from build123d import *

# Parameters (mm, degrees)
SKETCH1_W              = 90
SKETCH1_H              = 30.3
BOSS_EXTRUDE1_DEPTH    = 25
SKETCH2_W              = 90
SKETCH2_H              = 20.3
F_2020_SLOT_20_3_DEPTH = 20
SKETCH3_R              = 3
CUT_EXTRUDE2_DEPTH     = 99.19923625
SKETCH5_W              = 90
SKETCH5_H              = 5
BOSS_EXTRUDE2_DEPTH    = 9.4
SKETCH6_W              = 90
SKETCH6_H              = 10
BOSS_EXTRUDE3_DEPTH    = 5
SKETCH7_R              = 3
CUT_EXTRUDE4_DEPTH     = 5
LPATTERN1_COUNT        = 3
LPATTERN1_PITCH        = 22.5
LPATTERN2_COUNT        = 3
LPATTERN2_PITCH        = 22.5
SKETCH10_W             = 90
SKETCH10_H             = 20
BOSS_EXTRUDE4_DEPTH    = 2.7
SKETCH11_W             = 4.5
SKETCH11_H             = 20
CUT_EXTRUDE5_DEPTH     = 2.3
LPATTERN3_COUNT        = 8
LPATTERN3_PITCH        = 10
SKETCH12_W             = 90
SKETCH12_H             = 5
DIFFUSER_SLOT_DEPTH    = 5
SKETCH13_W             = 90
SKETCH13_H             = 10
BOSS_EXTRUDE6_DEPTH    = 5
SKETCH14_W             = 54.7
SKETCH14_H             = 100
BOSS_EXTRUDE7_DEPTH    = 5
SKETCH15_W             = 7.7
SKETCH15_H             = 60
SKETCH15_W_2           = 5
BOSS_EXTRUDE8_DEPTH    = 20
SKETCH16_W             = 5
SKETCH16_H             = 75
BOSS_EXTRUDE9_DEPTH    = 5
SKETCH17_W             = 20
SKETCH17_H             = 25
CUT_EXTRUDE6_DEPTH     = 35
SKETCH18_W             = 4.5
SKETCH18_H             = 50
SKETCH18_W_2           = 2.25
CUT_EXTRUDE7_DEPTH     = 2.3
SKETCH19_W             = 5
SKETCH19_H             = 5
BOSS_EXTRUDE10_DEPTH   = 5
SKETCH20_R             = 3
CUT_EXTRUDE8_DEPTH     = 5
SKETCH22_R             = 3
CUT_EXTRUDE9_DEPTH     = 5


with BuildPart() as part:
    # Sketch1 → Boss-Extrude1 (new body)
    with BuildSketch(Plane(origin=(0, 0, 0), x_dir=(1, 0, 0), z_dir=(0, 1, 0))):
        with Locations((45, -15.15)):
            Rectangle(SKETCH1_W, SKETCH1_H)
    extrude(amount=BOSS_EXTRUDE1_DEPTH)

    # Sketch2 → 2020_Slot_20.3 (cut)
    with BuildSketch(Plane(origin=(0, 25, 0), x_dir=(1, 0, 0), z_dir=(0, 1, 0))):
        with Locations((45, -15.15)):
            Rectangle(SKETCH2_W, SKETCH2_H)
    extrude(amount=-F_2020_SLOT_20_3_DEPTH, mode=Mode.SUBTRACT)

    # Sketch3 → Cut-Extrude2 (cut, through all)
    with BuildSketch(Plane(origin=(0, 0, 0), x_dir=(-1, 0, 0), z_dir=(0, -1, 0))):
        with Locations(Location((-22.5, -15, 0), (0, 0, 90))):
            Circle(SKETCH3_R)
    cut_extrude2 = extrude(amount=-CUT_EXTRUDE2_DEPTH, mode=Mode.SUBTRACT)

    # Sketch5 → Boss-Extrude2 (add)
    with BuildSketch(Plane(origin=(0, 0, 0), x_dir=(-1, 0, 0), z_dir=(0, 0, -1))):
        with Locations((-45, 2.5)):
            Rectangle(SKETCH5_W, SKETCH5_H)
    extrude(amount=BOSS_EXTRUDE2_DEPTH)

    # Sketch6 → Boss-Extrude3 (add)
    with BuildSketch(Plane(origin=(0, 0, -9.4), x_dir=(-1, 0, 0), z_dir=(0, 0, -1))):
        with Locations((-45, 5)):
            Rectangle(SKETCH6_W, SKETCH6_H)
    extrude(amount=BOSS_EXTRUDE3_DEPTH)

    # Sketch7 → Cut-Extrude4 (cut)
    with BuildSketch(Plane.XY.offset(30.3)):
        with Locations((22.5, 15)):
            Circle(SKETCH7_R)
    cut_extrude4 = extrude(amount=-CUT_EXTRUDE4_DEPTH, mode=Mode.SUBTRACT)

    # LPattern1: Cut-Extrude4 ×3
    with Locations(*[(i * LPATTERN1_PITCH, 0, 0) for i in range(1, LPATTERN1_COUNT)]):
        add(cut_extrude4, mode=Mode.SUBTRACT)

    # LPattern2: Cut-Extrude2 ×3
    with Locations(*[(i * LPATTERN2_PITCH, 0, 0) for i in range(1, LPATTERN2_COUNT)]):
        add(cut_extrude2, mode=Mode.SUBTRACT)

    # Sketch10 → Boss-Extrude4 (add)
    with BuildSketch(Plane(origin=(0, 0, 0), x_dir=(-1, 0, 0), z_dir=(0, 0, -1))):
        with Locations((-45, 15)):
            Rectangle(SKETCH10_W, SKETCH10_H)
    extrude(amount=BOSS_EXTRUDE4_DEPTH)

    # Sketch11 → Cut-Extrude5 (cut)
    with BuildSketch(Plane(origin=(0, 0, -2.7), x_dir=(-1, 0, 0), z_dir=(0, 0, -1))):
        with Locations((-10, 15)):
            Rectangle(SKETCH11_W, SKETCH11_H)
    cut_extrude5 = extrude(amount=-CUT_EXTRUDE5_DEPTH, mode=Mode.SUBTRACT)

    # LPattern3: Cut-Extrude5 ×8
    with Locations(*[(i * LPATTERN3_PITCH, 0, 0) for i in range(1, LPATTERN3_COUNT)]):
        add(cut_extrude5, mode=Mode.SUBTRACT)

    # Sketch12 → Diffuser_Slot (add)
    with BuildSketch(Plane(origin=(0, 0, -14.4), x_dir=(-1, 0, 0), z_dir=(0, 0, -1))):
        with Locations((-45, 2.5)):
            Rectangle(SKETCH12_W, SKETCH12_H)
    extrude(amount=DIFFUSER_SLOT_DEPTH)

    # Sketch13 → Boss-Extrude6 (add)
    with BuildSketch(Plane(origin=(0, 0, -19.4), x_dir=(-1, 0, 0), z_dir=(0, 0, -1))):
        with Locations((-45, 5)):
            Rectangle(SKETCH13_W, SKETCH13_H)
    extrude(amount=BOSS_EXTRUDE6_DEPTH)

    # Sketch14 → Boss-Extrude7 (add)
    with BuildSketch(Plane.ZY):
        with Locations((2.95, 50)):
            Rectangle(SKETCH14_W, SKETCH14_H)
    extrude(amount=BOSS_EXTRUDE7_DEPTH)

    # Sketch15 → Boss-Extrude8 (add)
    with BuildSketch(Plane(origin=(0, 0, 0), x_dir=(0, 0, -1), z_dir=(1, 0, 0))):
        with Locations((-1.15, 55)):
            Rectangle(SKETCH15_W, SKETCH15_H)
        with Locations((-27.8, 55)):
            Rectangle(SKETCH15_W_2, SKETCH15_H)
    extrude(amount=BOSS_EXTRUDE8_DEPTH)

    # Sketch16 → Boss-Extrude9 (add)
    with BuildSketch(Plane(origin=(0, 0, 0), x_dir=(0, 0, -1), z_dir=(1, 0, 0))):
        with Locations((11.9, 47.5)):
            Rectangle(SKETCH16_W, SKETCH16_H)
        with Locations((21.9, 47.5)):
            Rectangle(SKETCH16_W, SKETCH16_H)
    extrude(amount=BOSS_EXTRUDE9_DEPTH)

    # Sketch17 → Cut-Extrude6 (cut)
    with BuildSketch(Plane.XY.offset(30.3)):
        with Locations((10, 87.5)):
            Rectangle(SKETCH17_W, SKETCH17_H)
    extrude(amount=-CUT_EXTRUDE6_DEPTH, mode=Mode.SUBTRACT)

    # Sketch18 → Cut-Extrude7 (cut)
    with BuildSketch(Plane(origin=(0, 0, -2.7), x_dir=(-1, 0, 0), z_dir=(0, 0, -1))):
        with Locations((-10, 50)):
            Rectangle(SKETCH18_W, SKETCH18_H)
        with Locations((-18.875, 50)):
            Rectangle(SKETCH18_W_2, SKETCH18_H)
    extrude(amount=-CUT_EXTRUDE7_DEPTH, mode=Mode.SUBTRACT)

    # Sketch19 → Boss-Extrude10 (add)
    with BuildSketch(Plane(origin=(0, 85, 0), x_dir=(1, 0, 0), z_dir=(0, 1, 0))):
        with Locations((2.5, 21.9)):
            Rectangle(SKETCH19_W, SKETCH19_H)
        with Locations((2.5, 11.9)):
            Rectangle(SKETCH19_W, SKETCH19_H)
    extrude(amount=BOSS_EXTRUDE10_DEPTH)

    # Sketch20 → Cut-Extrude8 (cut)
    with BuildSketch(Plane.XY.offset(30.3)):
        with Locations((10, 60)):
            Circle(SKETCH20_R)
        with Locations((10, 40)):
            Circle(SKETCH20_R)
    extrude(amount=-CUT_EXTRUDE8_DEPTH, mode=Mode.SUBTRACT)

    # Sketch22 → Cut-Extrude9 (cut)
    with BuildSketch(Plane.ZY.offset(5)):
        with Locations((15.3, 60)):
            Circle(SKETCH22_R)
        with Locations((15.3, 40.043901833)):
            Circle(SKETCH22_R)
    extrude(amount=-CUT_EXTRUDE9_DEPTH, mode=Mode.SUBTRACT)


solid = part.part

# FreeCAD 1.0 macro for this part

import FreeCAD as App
import Part
import Sketcher
from FreeCAD import Vector
Q = App.Units.Quantity

doc = App.newDocument("Part")
body = doc.addObject("PartDesign::Body", "Body")

sketch1 = doc.addObject("Sketcher::SketchObject", "Sketch")
body.addObject(sketch1)
sketch1.AttachmentSupport = (doc.XZ_Plane, [""])
sketch1.MapMode = "FlatFace"
sketch1.addGeometry([
    Part.LineSegment(Vector(0, 0, 0), Vector(0, 30, 0)),
    Part.LineSegment(Vector(0, 30, 0), Vector(90, 30, 0)),
    Part.LineSegment(Vector(90, 30, 0), Vector(90, 0, 0)),
    Part.LineSegment(Vector(90, 0, 0), Vector(0, 0, 0)),
], False)
sketch1.addConstraint([
    Sketcher.Constraint("Coincident", 0, 2, 1, 1),
    Sketcher.Constraint("Coincident", 1, 2, 2, 1),
    Sketcher.Constraint("Coincident", 2, 2, 3, 1),
    Sketcher.Constraint("Coincident", 3, 2, 0, 1),
    Sketcher.Constraint("Vertical", 0),
    Sketcher.Constraint("Horizontal", 1),
    Sketcher.Constraint("Vertical", 2),
    Sketcher.Constraint("Horizontal", 3),
    Sketcher.Constraint("Coincident", 3, 2, -1, 1),
    Sketcher.Constraint("DistanceX", 1, 1, 1, 2, Q("90 mm")),
    Sketcher.Constraint("DistanceY", 0, 1, 0, 2, Q("30.3 mm")),
])
pad1 = doc.addObject("PartDesign::Pad", "Pad")
body.addObject(pad1)
pad1.Profile = sketch1
pad1.Length = 25
pad1.Reversed = True

sketch2 = doc.addObject("Sketcher::SketchObject", "Sketch001")
body.addObject(sketch2)
sketch2.AttachmentSupport = (doc.XZ_Plane, [""])
sketch2.MapMode = "FlatFace"
sketch2.AttachmentOffset = App.Placement(Vector(0, 0, -25), App.Rotation())
sketch2.addGeometry([
    Part.LineSegment(Vector(0, 5, 0), Vector(0, 25, 0)),
    Part.LineSegment(Vector(0, 25, 0), Vector(90, 25, 0)),
    Part.LineSegment(Vector(90, 25, 0), Vector(90, 5, 0)),
    Part.LineSegment(Vector(90, 5, 0), Vector(0, 5, 0)),
], False)
sketch2.addConstraint([
    Sketcher.Constraint("Coincident", 0, 2, 1, 1),
    Sketcher.Constraint("Coincident", 1, 2, 2, 1),
    Sketcher.Constraint("Coincident", 2, 2, 3, 1),
    Sketcher.Constraint("Coincident", 3, 2, 0, 1),
    Sketcher.Constraint("Vertical", 0),
    Sketcher.Constraint("Horizontal", 1),
    Sketcher.Constraint("Vertical", 2),
    Sketcher.Constraint("Horizontal", 3),
    Sketcher.Constraint("PointOnObject", 0, 2, -2),
    Sketcher.Constraint("DistanceX", 1, 1, 1, 2, Q("90 mm")),
    Sketcher.Constraint("DistanceY", 0, 1, 0, 2, Q("20.3 mm")),
    Sketcher.Constraint("DistanceY", -1, 1, 2, 2, Q("5 mm")),
])
pocket1 = doc.addObject("PartDesign::Pocket", "Pocket")
body.addObject(pocket1)
pocket1.Profile = sketch2
pocket1.Length = 20
pocket1.Reversed = True

sketch3 = doc.addObject("Sketcher::SketchObject", "Sketch002")
body.addObject(sketch3)
sketch3.AttachmentSupport = (doc.XZ_Plane, [""])
sketch3.MapMode = "FlatFace"
sketch3.addGeometry(Part.Circle(Vector(22.5, 15, 0), Vector(0, 0, 1), 3), False)
sketch3.addConstraint([
    Sketcher.Constraint("Diameter", 0, Q("6 mm")),
    Sketcher.Constraint("DistanceY", -1, 1, 0, 3, Q("15 mm")),
    Sketcher.Constraint("DistanceX", -1, 1, 0, 3, Q("22.5 mm")),
])
pocket2 = doc.addObject("PartDesign::Pocket", "Pocket001")
body.addObject(pocket2)
pocket2.Profile = sketch3
pocket2.Type = "ThroughAll"

sketch4 = doc.addObject("Sketcher::SketchObject", "Sketch003")
body.addObject(sketch4)
sketch4.AttachmentSupport = (doc.XY_Plane, [""])
sketch4.MapMode = "FlatFace"
sketch4.addGeometry([
    Part.LineSegment(Vector(90, 5, 0), Vector(90, 0, 0)),
    Part.LineSegment(Vector(90, 0, 0), Vector(0, 0, 0)),
    Part.LineSegment(Vector(0, 0, 0), Vector(0, 5, 0)),
    Part.LineSegment(Vector(0, 5, 0), Vector(90, 5, 0)),
], False)
sketch4.addConstraint([
    Sketcher.Constraint("Coincident", 0, 2, 1, 1),
    Sketcher.Constraint("Coincident", 1, 2, 2, 1),
    Sketcher.Constraint("Coincident", 2, 2, 3, 1),
    Sketcher.Constraint("Coincident", 3, 2, 0, 1),
    Sketcher.Constraint("Vertical", 0),
    Sketcher.Constraint("Horizontal", 1),
    Sketcher.Constraint("Vertical", 2),
    Sketcher.Constraint("Horizontal", 3),
    Sketcher.Constraint("Coincident", 1, 2, -1, 1),
    Sketcher.Constraint("DistanceX", 1, 2, 1, 1, Q("90 mm")),
    Sketcher.Constraint("DistanceY", 0, 2, 0, 1, Q("5 mm")),
])
pad2 = doc.addObject("PartDesign::Pad", "Pad001")
body.addObject(pad2)
pad2.Profile = sketch4
pad2.Length = 9.4
pad2.Reversed = True

sketch5 = doc.addObject("Sketcher::SketchObject", "Sketch004")
body.addObject(sketch5)
sketch5.AttachmentSupport = (doc.XY_Plane, [""])
sketch5.MapMode = "FlatFace"
sketch5.AttachmentOffset = App.Placement(Vector(0, 0, -9.4), App.Rotation())
sketch5.addGeometry([
    Part.LineSegment(Vector(90, 10, 0), Vector(90, 0, 0)),
    Part.LineSegment(Vector(90, 0, 0), Vector(0, 0, 0)),
    Part.LineSegment(Vector(0, 0, 0), Vector(0, 10, 0)),
    Part.LineSegment(Vector(0, 10, 0), Vector(90, 10, 0)),
], False)
sketch5.addConstraint([
    Sketcher.Constraint("Coincident", 0, 2, 1, 1),
    Sketcher.Constraint("Coincident", 1, 2, 2, 1),
    Sketcher.Constraint("Coincident", 2, 2, 3, 1),
    Sketcher.Constraint("Coincident", 3, 2, 0, 1),
    Sketcher.Constraint("Vertical", 0),
    Sketcher.Constraint("Horizontal", 1),
    Sketcher.Constraint("Vertical", 2),
    Sketcher.Constraint("Horizontal", 3),
    Sketcher.Constraint("Coincident", 1, 2, -1, 1),
    Sketcher.Constraint("DistanceX", 1, 2, 1, 1, Q("90 mm")),
    Sketcher.Constraint("DistanceY", 0, 2, 0, 1, Q("10 mm")),
])
pad3 = doc.addObject("PartDesign::Pad", "Pad002")
body.addObject(pad3)
pad3.Profile = sketch5
pad3.Length = 5
pad3.Reversed = True

sketch6 = doc.addObject("Sketcher::SketchObject", "Sketch005")
body.addObject(sketch6)
sketch6.AttachmentSupport = (doc.XY_Plane, [""])
sketch6.MapMode = "FlatFace"
sketch6.AttachmentOffset = App.Placement(Vector(0, 0, 30.3), App.Rotation())
sketch6.addGeometry(Part.Circle(Vector(22.5, 15, 0), Vector(0, 0, 1), 3), False)
sketch6.addConstraint([
    Sketcher.Constraint("Diameter", 0, Q("6 mm")),
    Sketcher.Constraint("DistanceY", -1, 1, 0, 3, Q("15 mm")),
    Sketcher.Constraint("DistanceX", -1, 1, 0, 3, Q("22.5 mm")),
])
pocket3 = doc.addObject("PartDesign::Pocket", "Pocket002")
body.addObject(pocket3)
pocket3.Profile = sketch6
pocket3.Length = 5
doc.recompute()

linearpattern = doc.addObject("PartDesign::LinearPattern", "LinearPattern")
body.addObject(linearpattern)
linearpattern.Originals = [pocket3]
linearpattern.Direction = (doc.X_Axis, [""])
linearpattern.Mode = "offset"
linearpattern.Offset = 22.5
linearpattern.Occurrences = 3
body.Tip = linearpattern
doc.recompute()

linearpattern2 = doc.addObject("PartDesign::LinearPattern", "LinearPattern001")
body.addObject(linearpattern2)
linearpattern2.Originals = [pocket2]
linearpattern2.Direction = (doc.X_Axis, [""])
linearpattern2.Mode = "offset"
linearpattern2.Offset = 22.5
linearpattern2.Occurrences = 3
body.Tip = linearpattern2

sketch7 = doc.addObject("Sketcher::SketchObject", "Sketch006")
body.addObject(sketch7)
sketch7.AttachmentSupport = (doc.XY_Plane, [""])
sketch7.MapMode = "FlatFace"
sketch7.addGeometry([
    Part.LineSegment(Vector(90, 25, 0), Vector(90, 5, 0)),
    Part.LineSegment(Vector(90, 5, 0), Vector(0, 5, 0)),
    Part.LineSegment(Vector(0, 5, 0), Vector(0, 25, 0)),
    Part.LineSegment(Vector(0, 25, 0), Vector(90, 25, 0)),
], False)
sketch7.addConstraint([
    Sketcher.Constraint("Coincident", 0, 2, 1, 1),
    Sketcher.Constraint("Coincident", 1, 2, 2, 1),
    Sketcher.Constraint("Coincident", 2, 2, 3, 1),
    Sketcher.Constraint("Coincident", 3, 2, 0, 1),
    Sketcher.Constraint("Vertical", 0),
    Sketcher.Constraint("Horizontal", 1),
    Sketcher.Constraint("Vertical", 2),
    Sketcher.Constraint("Horizontal", 3),
    Sketcher.Constraint("PointOnObject", 1, 2, -2),
    Sketcher.Constraint("DistanceX", 1, 2, 1, 1, Q("90 mm")),
    Sketcher.Constraint("DistanceY", 0, 2, 0, 1, Q("20 mm")),
    Sketcher.Constraint("DistanceY", -1, 1, 0, 2, Q("5 mm")),
])
pad4 = doc.addObject("PartDesign::Pad", "Pad003")
body.addObject(pad4)
pad4.Profile = sketch7
pad4.Length = 2.7
pad4.Reversed = True

sketch8 = doc.addObject("Sketcher::SketchObject", "Sketch007")
body.addObject(sketch8)
sketch8.AttachmentSupport = (doc.XY_Plane, [""])
sketch8.MapMode = "FlatFace"
sketch8.AttachmentOffset = App.Placement(Vector(0, 0, -2.7), App.Rotation())
sketch8.addGeometry([
    Part.LineSegment(Vector(12.2, 25, 0), Vector(12.2, 5, 0)),
    Part.LineSegment(Vector(12.2, 5, 0), Vector(7.8, 5, 0)),
    Part.LineSegment(Vector(7.8, 5, 0), Vector(7.8, 25, 0)),
    Part.LineSegment(Vector(7.8, 25, 0), Vector(12.2, 25, 0)),
], False)
sketch8.addConstraint([
    Sketcher.Constraint("Coincident", 0, 2, 1, 1),
    Sketcher.Constraint("Coincident", 1, 2, 2, 1),
    Sketcher.Constraint("Coincident", 2, 2, 3, 1),
    Sketcher.Constraint("Coincident", 3, 2, 0, 1),
    Sketcher.Constraint("Vertical", 0),
    Sketcher.Constraint("Horizontal", 1),
    Sketcher.Constraint("Vertical", 2),
    Sketcher.Constraint("Horizontal", 3),
    Sketcher.Constraint("DistanceY", 0, 2, 0, 1, Q("20 mm")),
    Sketcher.Constraint("DistanceX", 1, 2, 1, 1, Q("4.5 mm")),
    Sketcher.Constraint("DistanceY", -1, 1, 0, 2, Q("5 mm")),
    Sketcher.Constraint("DistanceX", -1, 1, 0, 2, Q("12.25 mm")),
])
pocket4 = doc.addObject("PartDesign::Pocket", "Pocket003")
body.addObject(pocket4)
pocket4.Profile = sketch8
pocket4.Length = 2.3
pocket4.Reversed = True
doc.recompute()

linearpattern3 = doc.addObject("PartDesign::LinearPattern", "LinearPattern002")
body.addObject(linearpattern3)
linearpattern3.Originals = [pocket4]
linearpattern3.Direction = (doc.X_Axis, [""])
linearpattern3.Mode = "offset"
linearpattern3.Offset = 10
linearpattern3.Occurrences = 8
body.Tip = linearpattern3

sketch9 = doc.addObject("Sketcher::SketchObject", "Sketch008")
body.addObject(sketch9)
sketch9.AttachmentSupport = (doc.XY_Plane, [""])
sketch9.MapMode = "FlatFace"
sketch9.AttachmentOffset = App.Placement(Vector(0, 0, -14.4), App.Rotation())
sketch9.addGeometry([
    Part.LineSegment(Vector(90, 5, 0), Vector(90, 0, 0)),
    Part.LineSegment(Vector(90, 0, 0), Vector(0, 0, 0)),
    Part.LineSegment(Vector(0, 0, 0), Vector(0, 5, 0)),
    Part.LineSegment(Vector(0, 5, 0), Vector(90, 5, 0)),
], False)
sketch9.addConstraint([
    Sketcher.Constraint("Coincident", 0, 2, 1, 1),
    Sketcher.Constraint("Coincident", 1, 2, 2, 1),
    Sketcher.Constraint("Coincident", 2, 2, 3, 1),
    Sketcher.Constraint("Coincident", 3, 2, 0, 1),
    Sketcher.Constraint("Vertical", 0),
    Sketcher.Constraint("Horizontal", 1),
    Sketcher.Constraint("Vertical", 2),
    Sketcher.Constraint("Horizontal", 3),
    Sketcher.Constraint("Coincident", 1, 2, -1, 1),
    Sketcher.Constraint("DistanceX", 1, 2, 1, 1, Q("90 mm")),
    Sketcher.Constraint("DistanceY", 0, 2, 0, 1, Q("5 mm")),
])
pad5 = doc.addObject("PartDesign::Pad", "Pad004")
body.addObject(pad5)
pad5.Profile = sketch9
pad5.Length = 5
pad5.Reversed = True

sketch10 = doc.addObject("Sketcher::SketchObject", "Sketch009")
body.addObject(sketch10)
sketch10.AttachmentSupport = (doc.XY_Plane, [""])
sketch10.MapMode = "FlatFace"
sketch10.AttachmentOffset = App.Placement(Vector(0, 0, -19.4), App.Rotation())
sketch10.addGeometry([
    Part.LineSegment(Vector(90, 10, 0), Vector(90, 0, 0)),
    Part.LineSegment(Vector(90, 0, 0), Vector(0, 0, 0)),
    Part.LineSegment(Vector(0, 0, 0), Vector(0, 10, 0)),
    Part.LineSegment(Vector(0, 10, 0), Vector(90, 10, 0)),
], False)
sketch10.addConstraint([
    Sketcher.Constraint("Coincident", 0, 2, 1, 1),
    Sketcher.Constraint("Coincident", 1, 2, 2, 1),
    Sketcher.Constraint("Coincident", 2, 2, 3, 1),
    Sketcher.Constraint("Coincident", 3, 2, 0, 1),
    Sketcher.Constraint("Vertical", 0),
    Sketcher.Constraint("Horizontal", 1),
    Sketcher.Constraint("Vertical", 2),
    Sketcher.Constraint("Horizontal", 3),
    Sketcher.Constraint("Coincident", 1, 2, -1, 1),
    Sketcher.Constraint("DistanceX", 1, 2, 1, 1, Q("90 mm")),
    Sketcher.Constraint("DistanceY", 0, 2, 0, 1, Q("10 mm")),
])
pad6 = doc.addObject("PartDesign::Pad", "Pad005")
body.addObject(pad6)
pad6.Profile = sketch10
pad6.Length = 5
pad6.Reversed = True

sketch11 = doc.addObject("Sketcher::SketchObject", "Sketch010")
body.addObject(sketch11)
sketch11.AttachmentSupport = (doc.YZ_Plane, [""])
sketch11.MapMode = "FlatFace"
sketch11.addGeometry([
    Part.LineSegment(Vector(100, -24, 0), Vector(0, -24, 0)),
    Part.LineSegment(Vector(0, -24, 0), Vector(0, 30, 0)),
    Part.LineSegment(Vector(0, 30, 0), Vector(100, 30, 0)),
    Part.LineSegment(Vector(100, 30, 0), Vector(100, -24, 0)),
], False)
sketch11.addConstraint([
    Sketcher.Constraint("Coincident", 0, 2, 1, 1),
    Sketcher.Constraint("Coincident", 1, 2, 2, 1),
    Sketcher.Constraint("Coincident", 2, 2, 3, 1),
    Sketcher.Constraint("Coincident", 3, 2, 0, 1),
    Sketcher.Constraint("Horizontal", 0),
    Sketcher.Constraint("Vertical", 1),
    Sketcher.Constraint("Horizontal", 2),
    Sketcher.Constraint("Vertical", 3),
    Sketcher.Constraint("PointOnObject", 0, 2, -2),
    Sketcher.Constraint("DistanceX", 0, 2, 0, 1, Q("100 mm")),
    Sketcher.Constraint("DistanceY", 1, 1, 1, 2, Q("54.7 mm")),
    Sketcher.Constraint("DistanceY", 0, 2, -1, 1, Q("24.4 mm")),
])
pad7 = doc.addObject("PartDesign::Pad", "Pad006")
body.addObject(pad7)
pad7.Profile = sketch11
pad7.Length = 5
pad7.Reversed = True

sketch12 = doc.addObject("Sketcher::SketchObject", "Sketch011")
body.addObject(sketch12)
sketch12.AttachmentSupport = (doc.YZ_Plane, [""])
sketch12.MapMode = "FlatFace"
sketch12.addGeometry([
    Part.LineSegment(Vector(85, 5, 0), Vector(25, 5, 0)),
    Part.LineSegment(Vector(25, 5, 0), Vector(25, -3, 0)),
    Part.LineSegment(Vector(25, -3, 0), Vector(85, -3, 0)),
    Part.LineSegment(Vector(85, -3, 0), Vector(85, 5, 0)),
    Part.LineSegment(Vector(85, 30, 0), Vector(25, 30, 0)),
    Part.LineSegment(Vector(25, 30, 0), Vector(25, 25, 0)),
    Part.LineSegment(Vector(25, 25, 0), Vector(85, 25, 0)),
    Part.LineSegment(Vector(85, 25, 0), Vector(85, 30, 0)),
], False)
sketch12.addConstraint([
    Sketcher.Constraint("Coincident", 0, 2, 1, 1),
    Sketcher.Constraint("Coincident", 1, 2, 2, 1),
    Sketcher.Constraint("Coincident", 2, 2, 3, 1),
    Sketcher.Constraint("Coincident", 3, 2, 0, 1),
    Sketcher.Constraint("Coincident", 4, 2, 5, 1),
    Sketcher.Constraint("Coincident", 5, 2, 6, 1),
    Sketcher.Constraint("Coincident", 6, 2, 7, 1),
    Sketcher.Constraint("Coincident", 7, 2, 4, 1),
    Sketcher.Constraint("Horizontal", 0),
    Sketcher.Constraint("Vertical", 1),
    Sketcher.Constraint("Horizontal", 2),
    Sketcher.Constraint("Vertical", 3),
    Sketcher.Constraint("Horizontal", 4),
    Sketcher.Constraint("Vertical", 5),
    Sketcher.Constraint("Horizontal", 6),
    Sketcher.Constraint("Vertical", 7),
    Sketcher.Constraint("Vertical", 1, 2, 4, 2),
    Sketcher.Constraint("Vertical", 3, 2, 6, 2),
    Sketcher.Constraint("DistanceX", 0, 2, 0, 1, Q("60 mm")),
    Sketcher.Constraint("DistanceY", 5, 2, 5, 1, Q("5 mm")),
    Sketcher.Constraint("DistanceY", 1, 2, 1, 1, Q("7.7 mm")),
    Sketcher.Constraint("DistanceX", -1, 1, 0, 2, Q("25 mm")),
    Sketcher.Constraint("DistanceY", -1, 1, 0, 2, Q("5 mm")),
    Sketcher.Constraint("DistanceY", 1, 2, 4, 2, Q("33 mm")),
])
pad8 = doc.addObject("PartDesign::Pad", "Pad007")
body.addObject(pad8)
pad8.Profile = sketch12
pad8.Length = 20

sketch13 = doc.addObject("Sketcher::SketchObject", "Sketch012")
body.addObject(sketch13)
sketch13.AttachmentSupport = (doc.YZ_Plane, [""])
sketch13.MapMode = "FlatFace"
sketch13.addGeometry([
    Part.LineSegment(Vector(85, -9, 0), Vector(10, -9, 0)),
    Part.LineSegment(Vector(10, -9, 0), Vector(10, -14, 0)),
    Part.LineSegment(Vector(10, -14, 0), Vector(85, -14, 0)),
    Part.LineSegment(Vector(85, -14, 0), Vector(85, -9, 0)),
    Part.LineSegment(Vector(85, -19, 0), Vector(10, -19, 0)),
    Part.LineSegment(Vector(10, -19, 0), Vector(10, -24, 0)),
    Part.LineSegment(Vector(10, -24, 0), Vector(85, -24, 0)),
    Part.LineSegment(Vector(85, -24, 0), Vector(85, -19, 0)),
], False)
sketch13.addConstraint([
    Sketcher.Constraint("Coincident", 0, 2, 1, 1),
    Sketcher.Constraint("Coincident", 1, 2, 2, 1),
    Sketcher.Constraint("Coincident", 2, 2, 3, 1),
    Sketcher.Constraint("Coincident", 3, 2, 0, 1),
    Sketcher.Constraint("Coincident", 4, 2, 5, 1),
    Sketcher.Constraint("Coincident", 5, 2, 6, 1),
    Sketcher.Constraint("Coincident", 6, 2, 7, 1),
    Sketcher.Constraint("Coincident", 7, 2, 4, 1),
    Sketcher.Constraint("Horizontal", 0),
    Sketcher.Constraint("Vertical", 1),
    Sketcher.Constraint("Horizontal", 2),
    Sketcher.Constraint("Vertical", 3),
    Sketcher.Constraint("Horizontal", 4),
    Sketcher.Constraint("Vertical", 5),
    Sketcher.Constraint("Horizontal", 6),
    Sketcher.Constraint("Vertical", 7),
    Sketcher.Constraint("Vertical", 1, 2, 4, 2),
    Sketcher.Constraint("Vertical", 3, 2, 6, 2),
    Sketcher.Constraint("Equal", 3, 5),
    Sketcher.Constraint("DistanceX", 0, 2, 0, 1, Q("75 mm")),
    Sketcher.Constraint("DistanceY", 1, 2, 1, 1, Q("5 mm")),
    Sketcher.Constraint("DistanceX", -1, 1, 0, 2, Q("10 mm")),
    Sketcher.Constraint("DistanceY", 4, 2, 1, 2, Q("5 mm")),
    Sketcher.Constraint("DistanceY", 0, 2, -1, 1, Q("9.4 mm")),
])
pad9 = doc.addObject("PartDesign::Pad", "Pad008")
body.addObject(pad9)
pad9.Profile = sketch13
pad9.Length = 5

sketch14 = doc.addObject("Sketcher::SketchObject", "Sketch013")
body.addObject(sketch14)
sketch14.AttachmentSupport = (doc.XY_Plane, [""])
sketch14.MapMode = "FlatFace"
sketch14.AttachmentOffset = App.Placement(Vector(0, 0, 30.3), App.Rotation())
sketch14.addGeometry([
    Part.LineSegment(Vector(0, 100, 0), Vector(0, 75, 0)),
    Part.LineSegment(Vector(0, 75, 0), Vector(20, 75, 0)),
    Part.LineSegment(Vector(20, 75, 0), Vector(20, 100, 0)),
    Part.LineSegment(Vector(20, 100, 0), Vector(0, 100, 0)),
], False)
sketch14.addConstraint([
    Sketcher.Constraint("Coincident", 0, 2, 1, 1),
    Sketcher.Constraint("Coincident", 1, 2, 2, 1),
    Sketcher.Constraint("Coincident", 2, 2, 3, 1),
    Sketcher.Constraint("Coincident", 3, 2, 0, 1),
    Sketcher.Constraint("Vertical", 0),
    Sketcher.Constraint("Horizontal", 1),
    Sketcher.Constraint("Vertical", 2),
    Sketcher.Constraint("Horizontal", 3),
    Sketcher.Constraint("PointOnObject", 0, 2, -2),
    Sketcher.Constraint("DistanceX", 1, 1, 1, 2, Q("20 mm")),
    Sketcher.Constraint("DistanceY", 0, 2, 0, 1, Q("25 mm")),
    Sketcher.Constraint("DistanceY", -1, 1, 0, 2, Q("75 mm")),
])
pocket5 = doc.addObject("PartDesign::Pocket", "Pocket004")
body.addObject(pocket5)
pocket5.Profile = sketch14
pocket5.Length = 35

sketch15 = doc.addObject("Sketcher::SketchObject", "Sketch014")
body.addObject(sketch15)
sketch15.AttachmentSupport = (doc.XY_Plane, [""])
sketch15.MapMode = "FlatFace"
sketch15.AttachmentOffset = App.Placement(Vector(0, 0, -2.7), App.Rotation())
sketch15.addGeometry([
    Part.LineSegment(Vector(12.2, 75, 0), Vector(12.2, 25, 0)),
    Part.LineSegment(Vector(12.2, 25, 0), Vector(7.8, 25, 0)),
    Part.LineSegment(Vector(7.8, 25, 0), Vector(7.8, 75, 0)),
    Part.LineSegment(Vector(7.8, 75, 0), Vector(12.2, 75, 0)),
    Part.LineSegment(Vector(20, 75, 0), Vector(20, 25, 0)),
    Part.LineSegment(Vector(20, 25, 0), Vector(17.8, 25, 0)),
    Part.LineSegment(Vector(17.8, 25, 0), Vector(17.8, 75, 0)),
    Part.LineSegment(Vector(17.8, 75, 0), Vector(20, 75, 0)),
], False)
sketch15.addConstraint([
    Sketcher.Constraint("Coincident", 0, 2, 1, 1),
    Sketcher.Constraint("Coincident", 1, 2, 2, 1),
    Sketcher.Constraint("Coincident", 2, 2, 3, 1),
    Sketcher.Constraint("Coincident", 3, 2, 0, 1),
    Sketcher.Constraint("Coincident", 4, 2, 5, 1),
    Sketcher.Constraint("Coincident", 5, 2, 6, 1),
    Sketcher.Constraint("Coincident", 6, 2, 7, 1),
    Sketcher.Constraint("Coincident", 7, 2, 4, 1),
    Sketcher.Constraint("Vertical", 0),
    Sketcher.Constraint("Horizontal", 1),
    Sketcher.Constraint("Vertical", 2),
    Sketcher.Constraint("Horizontal", 3),
    Sketcher.Constraint("Vertical", 4),
    Sketcher.Constraint("Horizontal", 5),
    Sketcher.Constraint("Vertical", 6),
    Sketcher.Constraint("Horizontal", 7),
    Sketcher.Constraint("Horizontal", 1, 2, 4, 2),
    Sketcher.Constraint("Horizontal", 3, 2, 6, 2),
    Sketcher.Constraint("DistanceY", 0, 2, 0, 1, Q("50 mm")),
    Sketcher.Constraint("DistanceX", 1, 2, 1, 1, Q("4.5 mm")),
    Sketcher.Constraint("DistanceY", -1, 1, 0, 2, Q("25 mm")),
    Sketcher.Constraint("DistanceX", -1, 1, 4, 2, Q("20 mm")),
    Sketcher.Constraint("DistanceX", 1, 2, 5, 2, Q("10 mm")),
    Sketcher.Constraint("DistanceX", 5, 2, 5, 1, Q("2.25 mm")),
])
pocket6 = doc.addObject("PartDesign::Pocket", "Pocket005")
body.addObject(pocket6)
pocket6.Profile = sketch15
pocket6.Length = 2.3
pocket6.Reversed = True

sketch16 = doc.addObject("Sketcher::SketchObject", "Sketch015")
body.addObject(sketch16)
sketch16.AttachmentSupport = (doc.XZ_Plane, [""])
sketch16.MapMode = "FlatFace"
sketch16.AttachmentOffset = App.Placement(Vector(0, 0, -85), App.Rotation())
sketch16.addGeometry([
    Part.LineSegment(Vector(0, -24, 0), Vector(0, -19, 0)),
    Part.LineSegment(Vector(0, -19, 0), Vector(5, -19, 0)),
    Part.LineSegment(Vector(5, -19, 0), Vector(5, -24, 0)),
    Part.LineSegment(Vector(5, -24, 0), Vector(0, -24, 0)),
    Part.LineSegment(Vector(0, -14, 0), Vector(0, -9, 0)),
    Part.LineSegment(Vector(0, -9, 0), Vector(5, -9, 0)),
    Part.LineSegment(Vector(5, -9, 0), Vector(5, -14, 0)),
    Part.LineSegment(Vector(5, -14, 0), Vector(0, -14, 0)),
], False)
sketch16.addConstraint([
    Sketcher.Constraint("Coincident", 0, 2, 1, 1),
    Sketcher.Constraint("Coincident", 1, 2, 2, 1),
    Sketcher.Constraint("Coincident", 2, 2, 3, 1),
    Sketcher.Constraint("Coincident", 3, 2, 0, 1),
    Sketcher.Constraint("Coincident", 4, 2, 5, 1),
    Sketcher.Constraint("Coincident", 5, 2, 6, 1),
    Sketcher.Constraint("Coincident", 6, 2, 7, 1),
    Sketcher.Constraint("Coincident", 7, 2, 4, 1),
    Sketcher.Constraint("Vertical", 0),
    Sketcher.Constraint("Horizontal", 1),
    Sketcher.Constraint("Vertical", 2),
    Sketcher.Constraint("Horizontal", 3),
    Sketcher.Constraint("Vertical", 4),
    Sketcher.Constraint("Horizontal", 5),
    Sketcher.Constraint("Vertical", 6),
    Sketcher.Constraint("Horizontal", 7),
    Sketcher.Constraint("PointOnObject", 0, 2, -2),
    Sketcher.Constraint("PointOnObject", 4, 2, -2),
    Sketcher.Constraint("Vertical", 2, 2, 5, 2),
    Sketcher.Constraint("Equal", 7, 0),
    Sketcher.Constraint("Equal", 2, 4),
    Sketcher.Constraint("DistanceX", 1, 1, 1, 2, Q("5 mm")),
    Sketcher.Constraint("DistanceY", 0, 2, 4, 2, Q("10 mm")),
    Sketcher.Constraint("DistanceY", 0, 2, -1, 1, Q("19.4 mm")),
])
pad10 = doc.addObject("PartDesign::Pad", "Pad009")
body.addObject(pad10)
pad10.Profile = sketch16
pad10.Length = 5
pad10.Reversed = True

sketch17 = doc.addObject("Sketcher::SketchObject", "Sketch016")
body.addObject(sketch17)
sketch17.AttachmentSupport = (doc.XY_Plane, [""])
sketch17.MapMode = "FlatFace"
sketch17.AttachmentOffset = App.Placement(Vector(0, 0, 30.3), App.Rotation())
sketch17.addGeometry([
    Part.Circle(Vector(10, 60, 0), Vector(0, 0, 1), 3),
    Part.Circle(Vector(10, 40, 0), Vector(0, 0, 1), 3),
], False)
sketch17.addConstraint([
    Sketcher.Constraint("Equal", 0, 1),
    Sketcher.Constraint("Vertical", 0, 3, 1, 3),
    Sketcher.Constraint("Diameter", 0, Q("6 mm")),
    Sketcher.Constraint("DistanceX", -1, 1, 0, 3, Q("10 mm")),
    Sketcher.Constraint("DistanceY", -1, 1, 0, 3, Q("60 mm")),
    Sketcher.Constraint("DistanceY", -1, 1, 1, 3, Q("40 mm")),
])
pocket7 = doc.addObject("PartDesign::Pocket", "Pocket006")
body.addObject(pocket7)
pocket7.Profile = sketch17
pocket7.Length = 5

sketch18 = doc.addObject("Sketcher::SketchObject", "Sketch017")
body.addObject(sketch18)
sketch18.AttachmentSupport = (doc.YZ_Plane, [""])
sketch18.MapMode = "FlatFace"
sketch18.AttachmentOffset = App.Placement(Vector(0, 0, -5), App.Rotation())
sketch18.addGeometry([
    Part.Circle(Vector(60, 15.3, 0), Vector(0, 0, 1), 3),
    Part.Circle(Vector(40, 15.3, 0), Vector(0, 0, 1), 3),
], False)
sketch18.addConstraint([
    Sketcher.Constraint("Equal", 0, 1),
    Sketcher.Constraint("Horizontal", 0, 3, 1, 3),
    Sketcher.Constraint("Diameter", 0, Q("6 mm")),
    Sketcher.Constraint("DistanceX", -1, 1, 0, 3, Q("60 mm")),
    Sketcher.Constraint("DistanceY", -1, 1, 0, 3, Q("15.3 mm")),
    Sketcher.Constraint("DistanceX", -1, 1, 1, 3, Q("40.043902 mm")),
])
pocket8 = doc.addObject("PartDesign::Pocket", "Pocket007")
body.addObject(pocket8)
pocket8.Profile = sketch18
pocket8.Length = 5
pocket8.Reversed = True

doc.recompute()
